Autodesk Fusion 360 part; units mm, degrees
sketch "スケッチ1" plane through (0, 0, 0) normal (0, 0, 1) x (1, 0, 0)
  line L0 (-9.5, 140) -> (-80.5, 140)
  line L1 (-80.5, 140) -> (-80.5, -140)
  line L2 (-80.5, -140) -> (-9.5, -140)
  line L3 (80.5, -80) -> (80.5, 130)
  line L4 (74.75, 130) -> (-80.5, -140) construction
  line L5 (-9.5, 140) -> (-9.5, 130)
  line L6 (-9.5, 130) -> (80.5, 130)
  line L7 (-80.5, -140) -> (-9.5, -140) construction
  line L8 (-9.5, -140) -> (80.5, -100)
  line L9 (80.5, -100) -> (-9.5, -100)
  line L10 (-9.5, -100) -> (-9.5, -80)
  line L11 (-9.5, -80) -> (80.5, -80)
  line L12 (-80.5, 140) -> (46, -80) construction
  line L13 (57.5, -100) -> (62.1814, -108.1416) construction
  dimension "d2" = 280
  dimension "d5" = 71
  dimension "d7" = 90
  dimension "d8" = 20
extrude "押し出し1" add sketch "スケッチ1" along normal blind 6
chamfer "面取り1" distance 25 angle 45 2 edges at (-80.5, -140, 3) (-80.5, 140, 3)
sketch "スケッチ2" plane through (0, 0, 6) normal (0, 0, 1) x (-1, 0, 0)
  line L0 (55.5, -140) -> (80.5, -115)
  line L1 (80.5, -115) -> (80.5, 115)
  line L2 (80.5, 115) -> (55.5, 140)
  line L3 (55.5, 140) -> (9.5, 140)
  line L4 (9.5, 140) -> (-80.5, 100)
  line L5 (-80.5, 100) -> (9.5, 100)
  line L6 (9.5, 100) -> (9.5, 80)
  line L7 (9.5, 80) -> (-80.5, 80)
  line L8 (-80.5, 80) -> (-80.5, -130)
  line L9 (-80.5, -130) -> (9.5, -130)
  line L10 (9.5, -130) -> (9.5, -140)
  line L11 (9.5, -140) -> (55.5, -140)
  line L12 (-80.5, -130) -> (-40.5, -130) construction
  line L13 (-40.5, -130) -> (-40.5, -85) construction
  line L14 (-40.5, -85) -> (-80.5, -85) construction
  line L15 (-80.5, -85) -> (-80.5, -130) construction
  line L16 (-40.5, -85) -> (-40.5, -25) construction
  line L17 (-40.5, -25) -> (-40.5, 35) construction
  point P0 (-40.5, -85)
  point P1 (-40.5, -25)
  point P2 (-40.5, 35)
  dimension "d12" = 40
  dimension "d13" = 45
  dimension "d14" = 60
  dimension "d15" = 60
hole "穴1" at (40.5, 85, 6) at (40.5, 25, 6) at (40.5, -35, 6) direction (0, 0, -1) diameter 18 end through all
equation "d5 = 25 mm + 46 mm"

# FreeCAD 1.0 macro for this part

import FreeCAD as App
import Part
import Sketcher
Q = App.Units.Quantity


def edges_at(feature, points):
    """Names of the edges that pass closest to the given points."""
    edges = feature.Shape.Edges
    near = lambda p: min(range(len(edges)), key=lambda i: edges[i].distToShape(Part.Vertex(*p))[0])
    return sorted({f"Edge{near(p) + 1}" for p in points})


def add_polygon(sketch, points):
    """Adds a closed chain of lines whose ends are joined by coincident constraints."""
    first, n = sketch.GeometryCount, len(points)
    for a, b in zip(points, points[1:] + points[:1]):
        sketch.addGeometry(Part.LineSegment(App.Vector(*a, 0), App.Vector(*b, 0)), False)
    for i in range(n):
        sketch.addConstraint(Sketcher.Constraint("Coincident", first + i, 2, first + (i + 1) % n, 1))

doc = App.newDocument("Part")
body = doc.addObject("PartDesign::Body", "Body")

sketch1 = doc.addObject("Sketcher::SketchObject", "Sketch")
body.addObject(sketch1)
sketch1.AttachmentSupport = (doc.XY_Plane, [""])
sketch1.MapMode = "FlatFace"
add_polygon(sketch1, [(-10, 130), (-10, 140), (-80, 140), (-80, -140), (-10, -140), (80, -100), (-10, -100), (-10, -80), (80, -80), (80, 130)])
sketch1.addConstraint(Sketcher.Constraint("Vertical", 0))
sketch1.addConstraint(Sketcher.Constraint("Horizontal", 1))
sketch1.addConstraint(Sketcher.Constraint("Vertical", 2))
sketch1.addConstraint(Sketcher.Constraint("Horizontal", 3))
sketch1.addConstraint(Sketcher.Constraint("Horizontal", 5))
sketch1.addConstraint(Sketcher.Constraint("Vertical", 6))
sketch1.addConstraint(Sketcher.Constraint("Horizontal", 7))
sketch1.addConstraint(Sketcher.Constraint("Vertical", 8))
sketch1.addConstraint(Sketcher.Constraint("Horizontal", 9))
sketch1.addConstraint(Sketcher.Constraint("Symmetric", 0, 2, 3, 2, -1))
sketch1.addConstraint(Sketcher.Constraint("Vertical", 3, 2, 5, 2))
sketch1.addConstraint(Sketcher.Constraint("Vertical", 4, 2, 7, 2))
sketch1.addConstraint(Sketcher.Constraint("DistanceX", 1, 2, 1, 1, Q("71 mm")))
sketch1.addConstraint(Sketcher.Constraint("DistanceX", 5, 2, 5, 1, Q("90 mm")))
sketch1.addConstraint(Sketcher.Constraint("DistanceY", 2, 2, 2, 1, Q("280 mm")))
sketch1.addConstraint(Sketcher.Constraint("DistanceY", 6, 1, 6, 2, Q("20 mm")))
sketch1.addConstraint(Sketcher.Constraint("DistanceY", 0, 1, 0, 2, Q("10 mm")))
sketch1.addConstraint(Sketcher.Constraint("DistanceY", 8, 1, 8, 2, Q("210 mm")))
sketch1.addConstraint(Sketcher.Constraint("DistanceX", 0, 2, -1, 1, Q("9.5 mm")))
pad1 = doc.addObject("PartDesign::Pad", "Pad")
body.addObject(pad1)
pad1.Profile = sketch1
pad1.Length = 6
doc.recompute()

chamfer = doc.addObject("PartDesign::Chamfer", "Chamfer")
body.addObject(chamfer)
chamfer.Base = (pad1, edges_at(pad1, [(-80.5, -140, 3), (-80.5, 140, 3)]))
chamfer.Size = 25

sketch2 = doc.addObject("Sketcher::SketchObject", "Sketch001")
body.addObject(sketch2)
sketch2.AttachmentSupport = (doc.XY_Plane, [""])
sketch2.MapMode = "FlatFace"
sketch2.AttachmentOffset = App.Placement(App.Vector(0, 0, 6), App.Rotation())
sketch2.addGeometry(Part.Circle(App.Vector(40, 85, 0), App.Vector(0, 0, 1), 9), False)
sketch2.addGeometry(Part.Circle(App.Vector(40, 25, 0), App.Vector(0, 0, 1), 9), False)
sketch2.addGeometry(Part.Circle(App.Vector(40, -35, 0), App.Vector(0, 0, 1), 9), False)
sketch2.addConstraint(Sketcher.Constraint("Equal", 0, 1))
sketch2.addConstraint(Sketcher.Constraint("Equal", 1, 2))
sketch2.addConstraint(Sketcher.Constraint("Vertical", 0, 3, 1, 3))
sketch2.addConstraint(Sketcher.Constraint("Vertical", 1, 3, 2, 3))
sketch2.addConstraint(Sketcher.Constraint("Diameter", 0, Q("18 mm")))
sketch2.addConstraint(Sketcher.Constraint("DistanceY", -1, 1, 0, 3, Q("85 mm")))
sketch2.addConstraint(Sketcher.Constraint("DistanceY", -1, 1, 1, 3, Q("25 mm")))
sketch2.addConstraint(Sketcher.Constraint("DistanceY", 2, 3, -1, 1, Q("35 mm")))
sketch2.addConstraint(Sketcher.Constraint("DistanceX", -1, 1, 0, 3, Q("40.5 mm")))
doc.recompute()
hole = doc.addObject("PartDesign::Hole", "Hole")
body.addObject(hole)
hole.Profile = sketch2
hole.ThreadType = "None"
hole.Diameter = 18
hole.DepthType = "ThroughAll"

doc.recompute()
